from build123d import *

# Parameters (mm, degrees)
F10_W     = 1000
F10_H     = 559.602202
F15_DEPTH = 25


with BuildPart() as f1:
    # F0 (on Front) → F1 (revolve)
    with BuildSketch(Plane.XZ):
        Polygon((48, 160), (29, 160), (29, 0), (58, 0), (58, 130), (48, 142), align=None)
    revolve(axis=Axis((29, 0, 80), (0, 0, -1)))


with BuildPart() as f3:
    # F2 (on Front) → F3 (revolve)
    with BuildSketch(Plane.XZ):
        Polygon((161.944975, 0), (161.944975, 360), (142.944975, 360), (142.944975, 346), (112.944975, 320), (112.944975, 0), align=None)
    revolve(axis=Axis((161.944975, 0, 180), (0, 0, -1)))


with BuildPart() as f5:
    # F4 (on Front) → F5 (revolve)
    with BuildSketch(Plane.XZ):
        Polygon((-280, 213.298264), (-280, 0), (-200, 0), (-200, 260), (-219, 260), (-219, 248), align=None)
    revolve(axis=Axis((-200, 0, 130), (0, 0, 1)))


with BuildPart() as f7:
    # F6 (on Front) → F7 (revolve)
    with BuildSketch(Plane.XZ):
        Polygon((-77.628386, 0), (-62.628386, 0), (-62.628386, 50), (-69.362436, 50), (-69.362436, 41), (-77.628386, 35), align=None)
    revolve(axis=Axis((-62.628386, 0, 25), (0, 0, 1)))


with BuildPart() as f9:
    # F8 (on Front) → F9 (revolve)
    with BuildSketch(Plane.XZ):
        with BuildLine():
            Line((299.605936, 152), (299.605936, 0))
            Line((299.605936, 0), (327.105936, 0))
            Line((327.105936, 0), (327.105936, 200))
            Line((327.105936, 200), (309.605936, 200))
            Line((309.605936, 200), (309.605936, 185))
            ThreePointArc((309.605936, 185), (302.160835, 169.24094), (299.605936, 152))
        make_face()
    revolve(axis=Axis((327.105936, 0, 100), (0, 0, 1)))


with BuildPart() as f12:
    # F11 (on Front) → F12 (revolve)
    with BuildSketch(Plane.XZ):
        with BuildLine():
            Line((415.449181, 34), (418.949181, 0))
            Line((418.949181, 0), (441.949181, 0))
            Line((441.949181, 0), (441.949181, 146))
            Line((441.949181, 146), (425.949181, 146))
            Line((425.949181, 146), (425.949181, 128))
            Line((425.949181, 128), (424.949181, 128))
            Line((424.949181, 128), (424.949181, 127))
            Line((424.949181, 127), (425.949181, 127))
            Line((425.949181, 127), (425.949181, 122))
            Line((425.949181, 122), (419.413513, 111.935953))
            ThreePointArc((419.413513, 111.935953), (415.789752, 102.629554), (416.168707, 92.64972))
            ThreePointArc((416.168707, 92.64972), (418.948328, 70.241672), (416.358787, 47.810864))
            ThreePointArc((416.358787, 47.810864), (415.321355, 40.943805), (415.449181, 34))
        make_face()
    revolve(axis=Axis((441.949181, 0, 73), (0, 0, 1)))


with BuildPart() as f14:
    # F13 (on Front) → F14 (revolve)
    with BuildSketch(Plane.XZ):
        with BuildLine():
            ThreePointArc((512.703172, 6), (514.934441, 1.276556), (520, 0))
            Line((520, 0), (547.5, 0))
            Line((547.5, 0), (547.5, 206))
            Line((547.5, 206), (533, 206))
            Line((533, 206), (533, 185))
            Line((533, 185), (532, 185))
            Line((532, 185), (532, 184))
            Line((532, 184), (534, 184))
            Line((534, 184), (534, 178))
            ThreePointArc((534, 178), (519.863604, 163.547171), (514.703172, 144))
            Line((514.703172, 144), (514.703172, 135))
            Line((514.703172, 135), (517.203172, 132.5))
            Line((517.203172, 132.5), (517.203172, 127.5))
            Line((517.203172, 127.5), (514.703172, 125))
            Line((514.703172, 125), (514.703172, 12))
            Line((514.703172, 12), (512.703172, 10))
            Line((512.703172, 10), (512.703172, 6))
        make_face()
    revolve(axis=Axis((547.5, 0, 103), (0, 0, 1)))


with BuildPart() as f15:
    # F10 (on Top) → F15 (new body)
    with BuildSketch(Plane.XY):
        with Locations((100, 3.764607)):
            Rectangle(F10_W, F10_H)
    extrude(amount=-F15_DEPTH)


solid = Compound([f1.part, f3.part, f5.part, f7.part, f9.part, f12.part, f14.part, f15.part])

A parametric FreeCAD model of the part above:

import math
import FreeCAD as App
import Part
import Sketcher
from FreeCAD import Vector
Q = App.Units.Quantity

doc = App.newDocument("Part")
body = doc.addObject("PartDesign::Body", "Body")

# Sketch on XZ plane
sketch1 = doc.addObject("Sketcher::SketchObject", "Sketch")
body.addObject(sketch1)
sketch1.AttachmentSupport = (doc.XZ_Plane, [""])
sketch1.MapMode = "FlatFace"
sketch1.addGeometry([
    Part.LineSegment(Vector(48, 160, 0), Vector(29, 160, 0)),  # 0
    Part.LineSegment(Vector(29, 160, 0), Vector(29, 0, 0)),  # 1
    Part.LineSegment(Vector(29, 0, 0), Vector(58, 0, 0)),  # 2
    Part.LineSegment(Vector(58, 0, 0), Vector(58, 130, 0)),  # 3
    Part.LineSegment(Vector(58, 130, 0), Vector(48, 142, 0)),  # 4
    Part.LineSegment(Vector(48, 142, 0), Vector(48, 160, 0)),  # 5
], False)
sketch1.addGeometry(Part.LineSegment(Vector(29, 160, 0), Vector(29, 0, 0)), True)  # axis
sketch1.addConstraint([
    Sketcher.Constraint("Coincident", 0, 2, 1, 1),
    Sketcher.Constraint("Coincident", 1, 2, 2, 1),
    Sketcher.Constraint("Coincident", 2, 2, 3, 1),
    Sketcher.Constraint("Coincident", 3, 2, 4, 1),
    Sketcher.Constraint("Coincident", 4, 2, 5, 1),
    Sketcher.Constraint("Coincident", 5, 2, 0, 1),
    Sketcher.Constraint("Horizontal", 0),
    Sketcher.Constraint("Vertical", 1),
    Sketcher.Constraint("Horizontal", 2),
    Sketcher.Constraint("Vertical", 3),
    Sketcher.Constraint("Vertical", 5),
    Sketcher.Constraint("Vertical", 6),
    Sketcher.Constraint("Coincident", 6, 1, 0, 2),
    Sketcher.Constraint("PointOnObject", 1, 2, -1),
    Sketcher.Constraint("PointOnObject", 6, 2, -1),
    Sketcher.Constraint("DistanceX", 0, 2, 0, 1, Q("19 mm")),
    Sketcher.Constraint("DistanceX", 2, 1, 2, 2, Q("29 mm")),
    Sketcher.Constraint("DistanceY", 1, 2, 1, 1, Q("160 mm")),
    Sketcher.Constraint("DistanceY", 3, 1, 3, 2, Q("130 mm")),
    Sketcher.Constraint("DistanceY", 5, 1, 5, 2, Q("18 mm")),
    Sketcher.Constraint("DistanceX", -1, 1, 0, 2, Q("29 mm")),
])
revolution = doc.addObject("PartDesign::Revolution", "Revolution")
body.addObject(revolution)
revolution.Profile = sketch1
revolution.ReferenceAxis = (sketch1, ["Axis0"])
revolution.Angle = 360
body2 = doc.addObject("PartDesign::Body", "Body001")

# Sketch on XZ plane
sketch2 = doc.addObject("Sketcher::SketchObject", "Sketch001")
body2.addObject(sketch2)
sketch2.AttachmentSupport = (doc.getObject("XZ_Plane001"), [""])
sketch2.MapMode = "FlatFace"
sketch2.addGeometry([
    Part.LineSegment(Vector(162, 0, 0), Vector(162, 360, 0)),  # 0
    Part.LineSegment(Vector(162, 360, 0), Vector(143, 360, 0)),  # 1
    Part.LineSegment(Vector(143, 360, 0), Vector(143, 346, 0)),  # 2
    Part.LineSegment(Vector(143, 346, 0), Vector(113, 320, 0)),  # 3
    Part.LineSegment(Vector(113, 320, 0), Vector(113, 0, 0)),  # 4
    Part.LineSegment(Vector(113, 0, 0), Vector(162, 0, 0)),  # 5
], False)
sketch2.addGeometry(Part.LineSegment(Vector(162, 360, 0), Vector(162, 0, 0)), True)  # axis
sketch2.addConstraint([
    Sketcher.Constraint("Coincident", 0, 2, 1, 1),
    Sketcher.Constraint("Coincident", 1, 2, 2, 1),
    Sketcher.Constraint("Coincident", 2, 2, 3, 1),
    Sketcher.Constraint("Coincident", 3, 2, 4, 1),
    Sketcher.Constraint("Coincident", 4, 2, 5, 1),
    Sketcher.Constraint("Coincident", 5, 2, 0, 1),
    Sketcher.Constraint("Vertical", 0),
    Sketcher.Constraint("Horizontal", 1),
    Sketcher.Constraint("Vertical", 2),
    Sketcher.Constraint("Vertical", 4),
    Sketcher.Constraint("Horizontal", 5),
    Sketcher.Constraint("Vertical", 6),
    Sketcher.Constraint("Coincident", 6, 1, 0, 2),
    Sketcher.Constraint("PointOnObject", 4, 2, -1),
    Sketcher.Constraint("PointOnObject", 6, 2, -1),
    Sketcher.Constraint("DistanceX", 1, 2, 1, 1, Q("19 mm")),
    Sketcher.Constraint("DistanceX", 5, 1, 5, 2, Q("49 mm")),
    Sketcher.Constraint("DistanceY", 0, 1, 0, 2, Q("360 mm")),
    Sketcher.Constraint("DistanceY", 2, 2, 2, 1, Q("14 mm")),
    Sketcher.Constraint("DistanceY", 4, 2, 4, 1, Q("320 mm")),
    Sketcher.Constraint("DistanceX", -1, 1, 0, 2, Q("161.944975 mm")),
])
revolution2 = doc.addObject("PartDesign::Revolution", "Revolution001")
body2.addObject(revolution2)
revolution2.Profile = sketch2
revolution2.ReferenceAxis = (sketch2, ["Axis0"])
revolution2.Angle = 360
body3 = doc.addObject("PartDesign::Body", "Body002")

# Sketch on XZ plane
sketch3 = doc.addObject("Sketcher::SketchObject", "Sketch002")
body3.addObject(sketch3)
sketch3.AttachmentSupport = (doc.getObject("XZ_Plane002"), [""])
sketch3.MapMode = "FlatFace"
sketch3.addGeometry([
    Part.LineSegment(Vector(-280, 213, 0), Vector(-280, 0, 0)),  # 0
    Part.LineSegment(Vector(-280, 0, 0), Vector(-200, 0, 0)),  # 1
    Part.LineSegment(Vector(-200, 0, 0), Vector(-200, 260, 0)),  # 2
    Part.LineSegment(Vector(-200, 260, 0), Vector(-219, 260, 0)),  # 3
    Part.LineSegment(Vector(-219, 260, 0), Vector(-219, 248, 0)),  # 4
    Part.LineSegment(Vector(-219, 248, 0), Vector(-280, 213, 0)),  # 5
], False)
sketch3.addGeometry(Part.LineSegment(Vector(-200, 0, 0), Vector(-200, 260, 0)), True)  # axis
sketch3.addConstraint([
    Sketcher.Constraint("Coincident", 0, 2, 1, 1),
    Sketcher.Constraint("Coincident", 1, 2, 2, 1),
    Sketcher.Constraint("Coincident", 2, 2, 3, 1),
    Sketcher.Constraint("Coincident", 3, 2, 4, 1),
    Sketcher.Constraint("Coincident", 4, 2, 5, 1),
    Sketcher.Constraint("Coincident", 5, 2, 0, 1),
    Sketcher.Constraint("Vertical", 0),
    Sketcher.Constraint("Horizontal", 1),
    Sketcher.Constraint("Vertical", 2),
    Sketcher.Constraint("Horizontal", 3),
    Sketcher.Constraint("Vertical", 4),
    Sketcher.Constraint("Vertical", 6),
    Sketcher.Constraint("Coincident", 6, 1, 1, 2),
    Sketcher.Constraint("PointOnObject", 0, 2, -1),
    Sketcher.Constraint("Horizontal", 3, 2, 6, 2),
    Sketcher.Constraint("DistanceX", 1, 1, 1, 2, Q("80 mm")),
    Sketcher.Constraint("DistanceX", 3, 2, 3, 1, Q("19 mm")),
    Sketcher.Constraint("DistanceY", 2, 1, 2, 2, Q("260 mm")),
    Sketcher.Constraint("DistanceY", 4, 2, 4, 1, Q("12 mm")),
    Sketcher.Constraint("DistanceX", 0, 2, -1, 1, Q("280 mm")),
    Sketcher.Constraint("DistanceY", 0, 2, 0, 1, Q("213.298264 mm")),
])
revolution3 = doc.addObject("PartDesign::Revolution", "Revolution002")
body3.addObject(revolution3)
revolution3.Profile = sketch3
revolution3.ReferenceAxis = (sketch3, ["Axis0"])
revolution3.Angle = 360
body4 = doc.addObject("PartDesign::Body", "Body003")

# Sketch on XZ plane
sketch4 = doc.addObject("Sketcher::SketchObject", "Sketch003")
body4.addObject(sketch4)
sketch4.AttachmentSupport = (doc.getObject("XZ_Plane003"), [""])
sketch4.MapMode = "FlatFace"
sketch4.addGeometry([
    Part.LineSegment(Vector(-78, 0, 0), Vector(-63, 0, 0)),  # 0
    Part.LineSegment(Vector(-63, 0, 0), Vector(-63, 50, 0)),  # 1
    Part.LineSegment(Vector(-63, 50, 0), Vector(-69, 50, 0)),  # 2
    Part.LineSegment(Vector(-69, 50, 0), Vector(-69, 41, 0)),  # 3
    Part.LineSegment(Vector(-69, 41, 0), Vector(-78, 35, 0)),  # 4
    Part.LineSegment(Vector(-78, 35, 0), Vector(-78, 0, 0)),  # 5
], False)
sketch4.addGeometry(Part.LineSegment(Vector(-63, 0, 0), Vector(-63, 50, 0)), True)  # axis
sketch4.addConstraint([
    Sketcher.Constraint("Coincident", 0, 2, 1, 1),
    Sketcher.Constraint("Coincident", 1, 2, 2, 1),
    Sketcher.Constraint("Coincident", 2, 2, 3, 1),
    Sketcher.Constraint("Coincident", 3, 2, 4, 1),
    Sketcher.Constraint("Coincident", 4, 2, 5, 1),
    Sketcher.Constraint("Coincident", 5, 2, 0, 1),
    Sketcher.Constraint("Horizontal", 0),
    Sketcher.Constraint("Vertical", 1),
    Sketcher.Constraint("Horizontal", 2),
    Sketcher.Constraint("Vertical", 3),
    Sketcher.Constraint("Vertical", 5),
    Sketcher.Constraint("Vertical", 6),
    Sketcher.Constraint("Coincident", 6, 1, 0, 2),
    Sketcher.Constraint("PointOnObject", 0, 2, -1),
    Sketcher.Constraint("Horizontal", 2, 2, 6, 2),
    Sketcher.Constraint("DistanceX", 0, 1, 0, 2, Q("15 mm")),
    Sketcher.Constraint("DistanceY", 1, 1, 1, 2, Q("50 mm")),
    Sketcher.Constraint("DistanceY", 3, 2, 3, 1, Q("9 mm")),
    Sketcher.Constraint("DistanceY", 5, 2, 5, 1, Q("35 mm")),
    Sketcher.Constraint("DistanceX", 2, 2, 2, 1, Q("6.73405 mm")),
    Sketcher.Constraint("DistanceX", 0, 2, -1, 1, Q("62.628386 mm")),
])
revolution4 = doc.addObject("PartDesign::Revolution", "Revolution003")
body4.addObject(revolution4)
revolution4.Profile = sketch4
revolution4.ReferenceAxis = (sketch4, ["Axis0"])
revolution4.Angle = 360
body5 = doc.addObject("PartDesign::Body", "Body004")

# Sketch on XZ plane
sketch5 = doc.addObject("Sketcher::SketchObject", "Sketch004")
body5.addObject(sketch5)
sketch5.AttachmentSupport = (doc.getObject("XZ_Plane004"), [""])
sketch5.MapMode = "FlatFace"
sketch5.addGeometry([
    Part.LineSegment(Vector(300, 152, 0), Vector(300, 0, 0)),  # 0
    Part.LineSegment(Vector(300, 0, 0), Vector(327, 0, 0)),  # 1
    Part.LineSegment(Vector(327, 0, 0), Vector(327, 200, 0)),  # 2
    Part.LineSegment(Vector(327, 200, 0), Vector(310, 200, 0)),  # 3
    Part.LineSegment(Vector(310, 200, 0), Vector(310, 185, 0)),  # 4
    Part.ArcOfCircle(Part.Circle(Vector(359, 152, 0), Vector(0, 0, 1), 59), math.radians(146), math.radians(180)),  # 5
], False)
sketch5.addGeometry(Part.LineSegment(Vector(327, 0, 0), Vector(327, 200, 0)), True)  # axis
sketch5.addConstraint([
    Sketcher.Constraint("Coincident", 0, 2, 1, 1),
    Sketcher.Constraint("Coincident", 1, 2, 2, 1),
    Sketcher.Constraint("Coincident", 2, 2, 3, 1),
    Sketcher.Constraint("Coincident", 3, 2, 4, 1),
    Sketcher.Constraint("Coincident", 4, 2, 5, 1),
    Sketcher.Constraint("Tangent", 5, 2, 0, 1),
    Sketcher.Constraint("Vertical", 0),
    Sketcher.Constraint("Horizontal", 1),
    Sketcher.Constraint("Vertical", 2),
    Sketcher.Constraint("Horizontal", 3),
    Sketcher.Constraint("Vertical", 4),
    Sketcher.Constraint("Vertical", 6),
    Sketcher.Constraint("Coincident", 6, 1, 1, 2),
    Sketcher.Constraint("PointOnObject", 0, 2, -1),
    Sketcher.Constraint("Horizontal", 3, 2, 6, 2),
    Sketcher.Constraint("DistanceY", 0, 2, 0, 1, Q("152 mm")),
    Sketcher.Constraint("DistanceY", 2, 1, 2, 2, Q("200 mm")),
    Sketcher.Constraint("DistanceY", 4, 2, 4, 1, Q("15 mm")),
    Sketcher.Constraint("DistanceX", 1, 1, 1, 2, Q("27.5 mm")),
    Sketcher.Constraint("DistanceX", 3, 2, 3, 1, Q("17.5 mm")),
    Sketcher.Constraint("DistanceX", -1, 1, 5, 3, Q("359.05593 mm")),
])
revolution5 = doc.addObject("PartDesign::Revolution", "Revolution004")
body5.addObject(revolution5)
revolution5.Profile = sketch5
revolution5.ReferenceAxis = (sketch5, ["Axis0"])
revolution5.Angle = 360
body6 = doc.addObject("PartDesign::Body", "Body005")

# Sketch on XZ plane
sketch6 = doc.addObject("Sketcher::SketchObject", "Sketch005")
body6.addObject(sketch6)
sketch6.AttachmentSupport = (doc.getObject("XZ_Plane005"), [""])
sketch6.MapMode = "FlatFace"
sketch6.addGeometry([
    Part.LineSegment(Vector(415.4, 34, 0), Vector(418.9, 0, 0)),  # 0
    Part.LineSegment(Vector(418.9, 0, 0), Vector(441.9, 0, 0)),  # 1
    Part.LineSegment(Vector(441.9, 0, 0), Vector(441.9, 146, 0)),  # 2
    Part.LineSegment(Vector(441.9, 146, 0), Vector(425.9, 146, 0)),  # 3
    Part.LineSegment(Vector(425.9, 146, 0), Vector(425.9, 128, 0)),  # 4
    Part.LineSegment(Vector(425.9, 128, 0), Vector(424.9, 128, 0)),  # 5
    Part.LineSegment(Vector(424.9, 128, 0), Vector(424.9, 127, 0)),  # 6
    Part.LineSegment(Vector(424.9, 127, 0), Vector(425.9, 127, 0)),  # 7
    Part.LineSegment(Vector(425.9, 127, 0), Vector(425.9, 122, 0)),  # 8
    Part.LineSegment(Vector(425.9, 122, 0), Vector(419.4, 111.9, 0)),  # 9
    Part.ArcOfCircle(Part.Circle(Vector(440, 98.6, 0), Vector(0, 0, 1), 24.6), math.radians(147), math.radians(194)),  # 10
    Part.ArcOfCircle(Part.Circle(Vector(324, 69.8, 0), Vector(0, 0, 1), 95), math.radians(-13), math.radians(14)),  # 11
    Part.ArcOfCircle(Part.Circle(Vector(456.5, 38.2, 0), Vector(0, 0, 1), 41.3), math.radians(166.59), math.radians(185.88)),  # 12
], False)
sketch6.addGeometry(Part.LineSegment(Vector(441.9, 0, 0), Vector(441.9, 146, 0)), True)  # axis
sketch6.addConstraint([
    Sketcher.Constraint("Coincident", 0, 2, 1, 1),
    Sketcher.Constraint("Coincident", 1, 2, 2, 1),
    Sketcher.Constraint("Coincident", 2, 2, 3, 1),
    Sketcher.Constraint("Coincident", 3, 2, 4, 1),
    Sketcher.Constraint("Coincident", 4, 2, 5, 1),
    Sketcher.Constraint("Coincident", 5, 2, 6, 1),
    Sketcher.Constraint("Coincident", 6, 2, 7, 1),
    Sketcher.Constraint("Coincident", 7, 2, 8, 1),
    Sketcher.Constraint("Coincident", 8, 2, 9, 1),
    Sketcher.Constraint("Tangent", 9, 2, 10, 1),
    Sketcher.Constraint("Tangent", 10, 2, 11, 2),
    Sketcher.Constraint("Tangent", 11, 1, 12, 1),
    Sketcher.Constraint("Tangent", 12, 2, 0, 1),
    Sketcher.Constraint("Horizontal", 1),
    Sketcher.Constraint("Vertical", 2),
    Sketcher.Constraint("Horizontal", 3),
    Sketcher.Constraint("Vertical", 4),
    Sketcher.Constraint("Horizontal", 5),
    Sketcher.Constraint("Vertical", 6),
    Sketcher.Constraint("Horizontal", 7),
    Sketcher.Constraint("Vertical", 8),
    Sketcher.Constraint("Vertical", 13),
    Sketcher.Constraint("Coincident", 13, 1, 1, 2),
    Sketcher.Constraint("PointOnObject", 0, 2, -1),
    Sketcher.Constraint("Horizontal", 3, 2, 13, 2),
    Sketcher.Constraint("Vertical", 4, 2, 7, 2),
    Sketcher.Constraint("Equal", 7, 6),
    Sketcher.Constraint("DistanceX", 1, 1, 1, 2, Q("23 mm")),
    Sketcher.Constraint("DistanceX", 3, 2, 3, 1, Q("16 mm")),
    Sketcher.Constraint("DistanceX", 5, 2, 5, 1, Q("1 mm")),
    Sketcher.Constraint("DistanceY", 2, 1, 2, 2, Q("146 mm")),
    Sketcher.Constraint("DistanceY", 4, 2, 4, 1, Q("18 mm")),
    Sketcher.Constraint("DistanceY", 8, 2, 8, 1, Q("5 mm")),
    Sketcher.Constraint("Angle", 9, Q("-122.999998 deg")),
    Sketcher.Constraint("Distance", 9, Q("12 mm")),
    Sketcher.Constraint("DistanceY", -1, 1, 12, 2, Q("34 mm")),
    Sketcher.Constraint("Radius", 10, Q("24.572899 mm")),
    Sketcher.Constraint("DistanceX", 12, 2, 0, 2, Q("3.5 mm")),
    Sketcher.Constraint("Radius", 11, Q("94.95752 mm")),
    Sketcher.Constraint("Radius", 12, Q("41.302865 mm")),
    Sketcher.Constraint("DistanceX", -1, 1, 10, 3, Q("440.022081 mm")),
])
revolution6 = doc.addObject("PartDesign::Revolution", "Revolution005")
body6.addObject(revolution6)
revolution6.Profile = sketch6
revolution6.ReferenceAxis = (sketch6, ["Axis0"])
revolution6.Angle = 360
body7 = doc.addObject("PartDesign::Body", "Body006")

# Sketch on XZ plane
sketch7 = doc.addObject("Sketcher::SketchObject", "Sketch006")
body7.addObject(sketch7)
sketch7.AttachmentSupport = (doc.getObject("XZ_Plane006"), [""])
sketch7.MapMode = "FlatFace"
sketch7.addGeometry([
    Part.ArcOfCircle(Part.Circle(Vector(518.8, 6, 0), Vector(0, 0, 1), 6.1), math.radians(-180), math.radians(-79)),  # 0
    Part.LineSegment(Vector(520, 0, 0), Vector(547.5, 0, 0)),  # 1
    Part.LineSegment(Vector(547.5, 0, 0), Vector(547.5, 206, 0)),  # 2
    Part.LineSegment(Vector(547.5, 206, 0), Vector(533, 206, 0)),  # 3
    Part.LineSegment(Vector(533, 206, 0), Vector(533, 185, 0)),  # 4
    Part.LineSegment(Vector(533, 185, 0), Vector(532, 185, 0)),  # 5
    Part.LineSegment(Vector(532, 185, 0), Vector(532, 184, 0)),  # 6
    Part.LineSegment(Vector(532, 184, 0), Vector(534, 184, 0)),  # 7
    Part.LineSegment(Vector(534, 184, 0), Vector(534, 178, 0)),  # 8
    Part.ArcOfCircle(Part.Circle(Vector(554.3, 144, 0), Vector(0, 0, 1), 39.6), math.radians(121), math.radians(180)),  # 9
    Part.LineSegment(Vector(514.7, 144, 0), Vector(514.7, 135, 0)),  # 10
    Part.LineSegment(Vector(514.7, 135, 0), Vector(517.2, 132.5, 0)),  # 11
    Part.LineSegment(Vector(517.2, 132.5, 0), Vector(517.2, 127.5, 0)),  # 12
    Part.LineSegment(Vector(517.2, 127.5, 0), Vector(514.7, 125, 0)),  # 13
    Part.LineSegment(Vector(514.7, 125, 0), Vector(514.7, 12, 0)),  # 14
    Part.LineSegment(Vector(514.7, 12, 0), Vector(512.7, 10, 0)),  # 15
    Part.LineSegment(Vector(512.7, 10, 0), Vector(512.7, 6, 0)),  # 16
], False)
sketch7.addGeometry(Part.LineSegment(Vector(547.5, 0, 0), Vector(547.5, 206, 0)), True)  # axis
sketch7.addConstraint([
    Sketcher.Constraint("Coincident", 0, 2, 1, 1),
    Sketcher.Constraint("Coincident", 1, 2, 2, 1),
    Sketcher.Constraint("Coincident", 2, 2, 3, 1),
    Sketcher.Constraint("Coincident", 3, 2, 4, 1),
    Sketcher.Constraint("Coincident", 4, 2, 5, 1),
    Sketcher.Constraint("Coincident", 5, 2, 6, 1),
    Sketcher.Constraint("Coincident", 6, 2, 7, 1),
    Sketcher.Constraint("Coincident", 7, 2, 8, 1),
    Sketcher.Constraint("Coincident", 8, 2, 9, 1),
    Sketcher.Constraint("Tangent", 9, 2, 10, 1),
    Sketcher.Constraint("Coincident", 10, 2, 11, 1),
    Sketcher.Constraint("Coincident", 11, 2, 12, 1),
    Sketcher.Constraint("Coincident", 12, 2, 13, 1),
    Sketcher.Constraint("Coincident", 13, 2, 14, 1),
    Sketcher.Constraint("Coincident", 14, 2, 15, 1),
    Sketcher.Constraint("Coincident", 15, 2, 16, 1),
    Sketcher.Constraint("Tangent", 16, 2, 0, 1),
    Sketcher.Constraint("Horizontal", 1),
    Sketcher.Constraint("Vertical", 2),
    Sketcher.Constraint("Horizontal", 3),
    Sketcher.Constraint("Vertical", 4),
    Sketcher.Constraint("Horizontal", 5),
    Sketcher.Constraint("Vertical", 6),
    Sketcher.Constraint("Horizontal", 7),
    Sketcher.Constraint("Vertical", 8),
    Sketcher.Constraint("Vertical", 10),
    Sketcher.Constraint("Vertical", 12),
    Sketcher.Constraint("Vertical", 14),
    Sketcher.Constraint("Vertical", 16),
    Sketcher.Constraint("Vertical", 17),
    Sketcher.Constraint("Coincident", 17, 1, 1, 2),
    Sketcher.Constraint("PointOnObject", 0, 2, -1),
    Sketcher.Constraint("Perpendicular", 11, 13),
    Sketcher.Constraint("Parallel", 13, 15),
    Sketcher.Constraint("Horizontal", 3, 2, 17, 2),
    Sketcher.Constraint("Vertical", 10, 2, 13, 2),
    Sketcher.Constraint("Equal", 5, 6),
    Sketcher.Constraint("Equal", 11, 13),
    Sketcher.Constraint("DistanceX", 5, 2, 5, 1, Q("1 mm")),
    Sketcher.Constraint("DistanceX", 7, 1, 7, 2, Q("2 mm")),
    Sketcher.Constraint("DistanceY", 2, 1, 2, 2, Q("206 mm")),
    Sketcher.Constraint("DistanceY", 4, 2, 4, 1, Q("21 mm")),
    Sketcher.Constraint("DistanceY", 8, 2, 8, 1, Q("6 mm")),
    Sketcher.Constraint("DistanceY", 10, 2, 10, 1, Q("9 mm")),
    Sketcher.Constraint("DistanceY", 12, 2, 12, 1, Q("5 mm")),
    Sketcher.Constraint("DistanceY", 14, 2, 14, 1, Q("113 mm")),
    Sketcher.Constraint("DistanceY", 16, 2, 16, 1, Q("4 mm")),
    Sketcher.Constraint("DistanceX", 1, 1, 1, 2, Q("27.5 mm")),
    Sketcher.Constraint("DistanceX", 3, 2, 3, 1, Q("14.5 mm")),
    Sketcher.Constraint("DistanceY", -1, 1, 0, 3, Q("6.000001 mm")),
    Sketcher.Constraint("DistanceY", -1, 1, 9, 3, Q("144.000001 mm")),
    Sketcher.Constraint("DistanceX", -1, 1, 0, 2, Q("520 mm")),
    Sketcher.Constraint("DistanceY", -1, 1, 13, 2, Q("125 mm")),
    Sketcher.Constraint("Radius", 0, Q("6.11524 mm")),
])
revolution7 = doc.addObject("PartDesign::Revolution", "Revolution006")
body7.addObject(revolution7)
revolution7.Profile = sketch7
revolution7.ReferenceAxis = (sketch7, ["Axis0"])
revolution7.Angle = 360
body8 = doc.addObject("PartDesign::Body", "Body007")

# Sketch on XY plane
sketch8 = doc.addObject("Sketcher::SketchObject", "Sketch007")
body8.addObject(sketch8)
sketch8.AttachmentSupport = (doc.getObject("XY_Plane007"), [""])
sketch8.MapMode = "FlatFace"
sketch8.addGeometry([
    Part.LineSegment(Vector(-400, 284, 0), Vector(-400, -276, 0)),
    Part.LineSegment(Vector(-400, -276, 0), Vector(600, -276, 0)),
    Part.LineSegment(Vector(600, -276, 0), Vector(600, 284, 0)),
    Part.LineSegment(Vector(600, 284, 0), Vector(-400, 284, 0)),
], False)
sketch8.addConstraint([
    Sketcher.Constraint("Coincident", 0, 2, 1, 1),
    Sketcher.Constraint("Coincident", 1, 2, 2, 1),
    Sketcher.Constraint("Coincident", 2, 2, 3, 1),
    Sketcher.Constraint("Coincident", 3, 2, 0, 1),
    Sketcher.Constraint("Vertical", 0),
    Sketcher.Constraint("Horizontal", 1),
    Sketcher.Constraint("Vertical", 2),
    Sketcher.Constraint("Horizontal", 3),
    Sketcher.Constraint("DistanceX", 1, 1, 1, 2, Q("1000 mm")),
    Sketcher.Constraint("DistanceX", 0, 2, -1, 1, Q("400 mm")),
    Sketcher.Constraint("DistanceY", 0, 2, 0, 1, Q("559.602202 mm")),
    Sketcher.Constraint("DistanceY", 0, 2, -1, 1, Q("276.036494 mm")),
])
pad1 = doc.addObject("PartDesign::Pad", "Pad")
body8.addObject(pad1)
pad1.Profile = sketch8
pad1.Length = 25
pad1.Reversed = True

doc.recompute()
